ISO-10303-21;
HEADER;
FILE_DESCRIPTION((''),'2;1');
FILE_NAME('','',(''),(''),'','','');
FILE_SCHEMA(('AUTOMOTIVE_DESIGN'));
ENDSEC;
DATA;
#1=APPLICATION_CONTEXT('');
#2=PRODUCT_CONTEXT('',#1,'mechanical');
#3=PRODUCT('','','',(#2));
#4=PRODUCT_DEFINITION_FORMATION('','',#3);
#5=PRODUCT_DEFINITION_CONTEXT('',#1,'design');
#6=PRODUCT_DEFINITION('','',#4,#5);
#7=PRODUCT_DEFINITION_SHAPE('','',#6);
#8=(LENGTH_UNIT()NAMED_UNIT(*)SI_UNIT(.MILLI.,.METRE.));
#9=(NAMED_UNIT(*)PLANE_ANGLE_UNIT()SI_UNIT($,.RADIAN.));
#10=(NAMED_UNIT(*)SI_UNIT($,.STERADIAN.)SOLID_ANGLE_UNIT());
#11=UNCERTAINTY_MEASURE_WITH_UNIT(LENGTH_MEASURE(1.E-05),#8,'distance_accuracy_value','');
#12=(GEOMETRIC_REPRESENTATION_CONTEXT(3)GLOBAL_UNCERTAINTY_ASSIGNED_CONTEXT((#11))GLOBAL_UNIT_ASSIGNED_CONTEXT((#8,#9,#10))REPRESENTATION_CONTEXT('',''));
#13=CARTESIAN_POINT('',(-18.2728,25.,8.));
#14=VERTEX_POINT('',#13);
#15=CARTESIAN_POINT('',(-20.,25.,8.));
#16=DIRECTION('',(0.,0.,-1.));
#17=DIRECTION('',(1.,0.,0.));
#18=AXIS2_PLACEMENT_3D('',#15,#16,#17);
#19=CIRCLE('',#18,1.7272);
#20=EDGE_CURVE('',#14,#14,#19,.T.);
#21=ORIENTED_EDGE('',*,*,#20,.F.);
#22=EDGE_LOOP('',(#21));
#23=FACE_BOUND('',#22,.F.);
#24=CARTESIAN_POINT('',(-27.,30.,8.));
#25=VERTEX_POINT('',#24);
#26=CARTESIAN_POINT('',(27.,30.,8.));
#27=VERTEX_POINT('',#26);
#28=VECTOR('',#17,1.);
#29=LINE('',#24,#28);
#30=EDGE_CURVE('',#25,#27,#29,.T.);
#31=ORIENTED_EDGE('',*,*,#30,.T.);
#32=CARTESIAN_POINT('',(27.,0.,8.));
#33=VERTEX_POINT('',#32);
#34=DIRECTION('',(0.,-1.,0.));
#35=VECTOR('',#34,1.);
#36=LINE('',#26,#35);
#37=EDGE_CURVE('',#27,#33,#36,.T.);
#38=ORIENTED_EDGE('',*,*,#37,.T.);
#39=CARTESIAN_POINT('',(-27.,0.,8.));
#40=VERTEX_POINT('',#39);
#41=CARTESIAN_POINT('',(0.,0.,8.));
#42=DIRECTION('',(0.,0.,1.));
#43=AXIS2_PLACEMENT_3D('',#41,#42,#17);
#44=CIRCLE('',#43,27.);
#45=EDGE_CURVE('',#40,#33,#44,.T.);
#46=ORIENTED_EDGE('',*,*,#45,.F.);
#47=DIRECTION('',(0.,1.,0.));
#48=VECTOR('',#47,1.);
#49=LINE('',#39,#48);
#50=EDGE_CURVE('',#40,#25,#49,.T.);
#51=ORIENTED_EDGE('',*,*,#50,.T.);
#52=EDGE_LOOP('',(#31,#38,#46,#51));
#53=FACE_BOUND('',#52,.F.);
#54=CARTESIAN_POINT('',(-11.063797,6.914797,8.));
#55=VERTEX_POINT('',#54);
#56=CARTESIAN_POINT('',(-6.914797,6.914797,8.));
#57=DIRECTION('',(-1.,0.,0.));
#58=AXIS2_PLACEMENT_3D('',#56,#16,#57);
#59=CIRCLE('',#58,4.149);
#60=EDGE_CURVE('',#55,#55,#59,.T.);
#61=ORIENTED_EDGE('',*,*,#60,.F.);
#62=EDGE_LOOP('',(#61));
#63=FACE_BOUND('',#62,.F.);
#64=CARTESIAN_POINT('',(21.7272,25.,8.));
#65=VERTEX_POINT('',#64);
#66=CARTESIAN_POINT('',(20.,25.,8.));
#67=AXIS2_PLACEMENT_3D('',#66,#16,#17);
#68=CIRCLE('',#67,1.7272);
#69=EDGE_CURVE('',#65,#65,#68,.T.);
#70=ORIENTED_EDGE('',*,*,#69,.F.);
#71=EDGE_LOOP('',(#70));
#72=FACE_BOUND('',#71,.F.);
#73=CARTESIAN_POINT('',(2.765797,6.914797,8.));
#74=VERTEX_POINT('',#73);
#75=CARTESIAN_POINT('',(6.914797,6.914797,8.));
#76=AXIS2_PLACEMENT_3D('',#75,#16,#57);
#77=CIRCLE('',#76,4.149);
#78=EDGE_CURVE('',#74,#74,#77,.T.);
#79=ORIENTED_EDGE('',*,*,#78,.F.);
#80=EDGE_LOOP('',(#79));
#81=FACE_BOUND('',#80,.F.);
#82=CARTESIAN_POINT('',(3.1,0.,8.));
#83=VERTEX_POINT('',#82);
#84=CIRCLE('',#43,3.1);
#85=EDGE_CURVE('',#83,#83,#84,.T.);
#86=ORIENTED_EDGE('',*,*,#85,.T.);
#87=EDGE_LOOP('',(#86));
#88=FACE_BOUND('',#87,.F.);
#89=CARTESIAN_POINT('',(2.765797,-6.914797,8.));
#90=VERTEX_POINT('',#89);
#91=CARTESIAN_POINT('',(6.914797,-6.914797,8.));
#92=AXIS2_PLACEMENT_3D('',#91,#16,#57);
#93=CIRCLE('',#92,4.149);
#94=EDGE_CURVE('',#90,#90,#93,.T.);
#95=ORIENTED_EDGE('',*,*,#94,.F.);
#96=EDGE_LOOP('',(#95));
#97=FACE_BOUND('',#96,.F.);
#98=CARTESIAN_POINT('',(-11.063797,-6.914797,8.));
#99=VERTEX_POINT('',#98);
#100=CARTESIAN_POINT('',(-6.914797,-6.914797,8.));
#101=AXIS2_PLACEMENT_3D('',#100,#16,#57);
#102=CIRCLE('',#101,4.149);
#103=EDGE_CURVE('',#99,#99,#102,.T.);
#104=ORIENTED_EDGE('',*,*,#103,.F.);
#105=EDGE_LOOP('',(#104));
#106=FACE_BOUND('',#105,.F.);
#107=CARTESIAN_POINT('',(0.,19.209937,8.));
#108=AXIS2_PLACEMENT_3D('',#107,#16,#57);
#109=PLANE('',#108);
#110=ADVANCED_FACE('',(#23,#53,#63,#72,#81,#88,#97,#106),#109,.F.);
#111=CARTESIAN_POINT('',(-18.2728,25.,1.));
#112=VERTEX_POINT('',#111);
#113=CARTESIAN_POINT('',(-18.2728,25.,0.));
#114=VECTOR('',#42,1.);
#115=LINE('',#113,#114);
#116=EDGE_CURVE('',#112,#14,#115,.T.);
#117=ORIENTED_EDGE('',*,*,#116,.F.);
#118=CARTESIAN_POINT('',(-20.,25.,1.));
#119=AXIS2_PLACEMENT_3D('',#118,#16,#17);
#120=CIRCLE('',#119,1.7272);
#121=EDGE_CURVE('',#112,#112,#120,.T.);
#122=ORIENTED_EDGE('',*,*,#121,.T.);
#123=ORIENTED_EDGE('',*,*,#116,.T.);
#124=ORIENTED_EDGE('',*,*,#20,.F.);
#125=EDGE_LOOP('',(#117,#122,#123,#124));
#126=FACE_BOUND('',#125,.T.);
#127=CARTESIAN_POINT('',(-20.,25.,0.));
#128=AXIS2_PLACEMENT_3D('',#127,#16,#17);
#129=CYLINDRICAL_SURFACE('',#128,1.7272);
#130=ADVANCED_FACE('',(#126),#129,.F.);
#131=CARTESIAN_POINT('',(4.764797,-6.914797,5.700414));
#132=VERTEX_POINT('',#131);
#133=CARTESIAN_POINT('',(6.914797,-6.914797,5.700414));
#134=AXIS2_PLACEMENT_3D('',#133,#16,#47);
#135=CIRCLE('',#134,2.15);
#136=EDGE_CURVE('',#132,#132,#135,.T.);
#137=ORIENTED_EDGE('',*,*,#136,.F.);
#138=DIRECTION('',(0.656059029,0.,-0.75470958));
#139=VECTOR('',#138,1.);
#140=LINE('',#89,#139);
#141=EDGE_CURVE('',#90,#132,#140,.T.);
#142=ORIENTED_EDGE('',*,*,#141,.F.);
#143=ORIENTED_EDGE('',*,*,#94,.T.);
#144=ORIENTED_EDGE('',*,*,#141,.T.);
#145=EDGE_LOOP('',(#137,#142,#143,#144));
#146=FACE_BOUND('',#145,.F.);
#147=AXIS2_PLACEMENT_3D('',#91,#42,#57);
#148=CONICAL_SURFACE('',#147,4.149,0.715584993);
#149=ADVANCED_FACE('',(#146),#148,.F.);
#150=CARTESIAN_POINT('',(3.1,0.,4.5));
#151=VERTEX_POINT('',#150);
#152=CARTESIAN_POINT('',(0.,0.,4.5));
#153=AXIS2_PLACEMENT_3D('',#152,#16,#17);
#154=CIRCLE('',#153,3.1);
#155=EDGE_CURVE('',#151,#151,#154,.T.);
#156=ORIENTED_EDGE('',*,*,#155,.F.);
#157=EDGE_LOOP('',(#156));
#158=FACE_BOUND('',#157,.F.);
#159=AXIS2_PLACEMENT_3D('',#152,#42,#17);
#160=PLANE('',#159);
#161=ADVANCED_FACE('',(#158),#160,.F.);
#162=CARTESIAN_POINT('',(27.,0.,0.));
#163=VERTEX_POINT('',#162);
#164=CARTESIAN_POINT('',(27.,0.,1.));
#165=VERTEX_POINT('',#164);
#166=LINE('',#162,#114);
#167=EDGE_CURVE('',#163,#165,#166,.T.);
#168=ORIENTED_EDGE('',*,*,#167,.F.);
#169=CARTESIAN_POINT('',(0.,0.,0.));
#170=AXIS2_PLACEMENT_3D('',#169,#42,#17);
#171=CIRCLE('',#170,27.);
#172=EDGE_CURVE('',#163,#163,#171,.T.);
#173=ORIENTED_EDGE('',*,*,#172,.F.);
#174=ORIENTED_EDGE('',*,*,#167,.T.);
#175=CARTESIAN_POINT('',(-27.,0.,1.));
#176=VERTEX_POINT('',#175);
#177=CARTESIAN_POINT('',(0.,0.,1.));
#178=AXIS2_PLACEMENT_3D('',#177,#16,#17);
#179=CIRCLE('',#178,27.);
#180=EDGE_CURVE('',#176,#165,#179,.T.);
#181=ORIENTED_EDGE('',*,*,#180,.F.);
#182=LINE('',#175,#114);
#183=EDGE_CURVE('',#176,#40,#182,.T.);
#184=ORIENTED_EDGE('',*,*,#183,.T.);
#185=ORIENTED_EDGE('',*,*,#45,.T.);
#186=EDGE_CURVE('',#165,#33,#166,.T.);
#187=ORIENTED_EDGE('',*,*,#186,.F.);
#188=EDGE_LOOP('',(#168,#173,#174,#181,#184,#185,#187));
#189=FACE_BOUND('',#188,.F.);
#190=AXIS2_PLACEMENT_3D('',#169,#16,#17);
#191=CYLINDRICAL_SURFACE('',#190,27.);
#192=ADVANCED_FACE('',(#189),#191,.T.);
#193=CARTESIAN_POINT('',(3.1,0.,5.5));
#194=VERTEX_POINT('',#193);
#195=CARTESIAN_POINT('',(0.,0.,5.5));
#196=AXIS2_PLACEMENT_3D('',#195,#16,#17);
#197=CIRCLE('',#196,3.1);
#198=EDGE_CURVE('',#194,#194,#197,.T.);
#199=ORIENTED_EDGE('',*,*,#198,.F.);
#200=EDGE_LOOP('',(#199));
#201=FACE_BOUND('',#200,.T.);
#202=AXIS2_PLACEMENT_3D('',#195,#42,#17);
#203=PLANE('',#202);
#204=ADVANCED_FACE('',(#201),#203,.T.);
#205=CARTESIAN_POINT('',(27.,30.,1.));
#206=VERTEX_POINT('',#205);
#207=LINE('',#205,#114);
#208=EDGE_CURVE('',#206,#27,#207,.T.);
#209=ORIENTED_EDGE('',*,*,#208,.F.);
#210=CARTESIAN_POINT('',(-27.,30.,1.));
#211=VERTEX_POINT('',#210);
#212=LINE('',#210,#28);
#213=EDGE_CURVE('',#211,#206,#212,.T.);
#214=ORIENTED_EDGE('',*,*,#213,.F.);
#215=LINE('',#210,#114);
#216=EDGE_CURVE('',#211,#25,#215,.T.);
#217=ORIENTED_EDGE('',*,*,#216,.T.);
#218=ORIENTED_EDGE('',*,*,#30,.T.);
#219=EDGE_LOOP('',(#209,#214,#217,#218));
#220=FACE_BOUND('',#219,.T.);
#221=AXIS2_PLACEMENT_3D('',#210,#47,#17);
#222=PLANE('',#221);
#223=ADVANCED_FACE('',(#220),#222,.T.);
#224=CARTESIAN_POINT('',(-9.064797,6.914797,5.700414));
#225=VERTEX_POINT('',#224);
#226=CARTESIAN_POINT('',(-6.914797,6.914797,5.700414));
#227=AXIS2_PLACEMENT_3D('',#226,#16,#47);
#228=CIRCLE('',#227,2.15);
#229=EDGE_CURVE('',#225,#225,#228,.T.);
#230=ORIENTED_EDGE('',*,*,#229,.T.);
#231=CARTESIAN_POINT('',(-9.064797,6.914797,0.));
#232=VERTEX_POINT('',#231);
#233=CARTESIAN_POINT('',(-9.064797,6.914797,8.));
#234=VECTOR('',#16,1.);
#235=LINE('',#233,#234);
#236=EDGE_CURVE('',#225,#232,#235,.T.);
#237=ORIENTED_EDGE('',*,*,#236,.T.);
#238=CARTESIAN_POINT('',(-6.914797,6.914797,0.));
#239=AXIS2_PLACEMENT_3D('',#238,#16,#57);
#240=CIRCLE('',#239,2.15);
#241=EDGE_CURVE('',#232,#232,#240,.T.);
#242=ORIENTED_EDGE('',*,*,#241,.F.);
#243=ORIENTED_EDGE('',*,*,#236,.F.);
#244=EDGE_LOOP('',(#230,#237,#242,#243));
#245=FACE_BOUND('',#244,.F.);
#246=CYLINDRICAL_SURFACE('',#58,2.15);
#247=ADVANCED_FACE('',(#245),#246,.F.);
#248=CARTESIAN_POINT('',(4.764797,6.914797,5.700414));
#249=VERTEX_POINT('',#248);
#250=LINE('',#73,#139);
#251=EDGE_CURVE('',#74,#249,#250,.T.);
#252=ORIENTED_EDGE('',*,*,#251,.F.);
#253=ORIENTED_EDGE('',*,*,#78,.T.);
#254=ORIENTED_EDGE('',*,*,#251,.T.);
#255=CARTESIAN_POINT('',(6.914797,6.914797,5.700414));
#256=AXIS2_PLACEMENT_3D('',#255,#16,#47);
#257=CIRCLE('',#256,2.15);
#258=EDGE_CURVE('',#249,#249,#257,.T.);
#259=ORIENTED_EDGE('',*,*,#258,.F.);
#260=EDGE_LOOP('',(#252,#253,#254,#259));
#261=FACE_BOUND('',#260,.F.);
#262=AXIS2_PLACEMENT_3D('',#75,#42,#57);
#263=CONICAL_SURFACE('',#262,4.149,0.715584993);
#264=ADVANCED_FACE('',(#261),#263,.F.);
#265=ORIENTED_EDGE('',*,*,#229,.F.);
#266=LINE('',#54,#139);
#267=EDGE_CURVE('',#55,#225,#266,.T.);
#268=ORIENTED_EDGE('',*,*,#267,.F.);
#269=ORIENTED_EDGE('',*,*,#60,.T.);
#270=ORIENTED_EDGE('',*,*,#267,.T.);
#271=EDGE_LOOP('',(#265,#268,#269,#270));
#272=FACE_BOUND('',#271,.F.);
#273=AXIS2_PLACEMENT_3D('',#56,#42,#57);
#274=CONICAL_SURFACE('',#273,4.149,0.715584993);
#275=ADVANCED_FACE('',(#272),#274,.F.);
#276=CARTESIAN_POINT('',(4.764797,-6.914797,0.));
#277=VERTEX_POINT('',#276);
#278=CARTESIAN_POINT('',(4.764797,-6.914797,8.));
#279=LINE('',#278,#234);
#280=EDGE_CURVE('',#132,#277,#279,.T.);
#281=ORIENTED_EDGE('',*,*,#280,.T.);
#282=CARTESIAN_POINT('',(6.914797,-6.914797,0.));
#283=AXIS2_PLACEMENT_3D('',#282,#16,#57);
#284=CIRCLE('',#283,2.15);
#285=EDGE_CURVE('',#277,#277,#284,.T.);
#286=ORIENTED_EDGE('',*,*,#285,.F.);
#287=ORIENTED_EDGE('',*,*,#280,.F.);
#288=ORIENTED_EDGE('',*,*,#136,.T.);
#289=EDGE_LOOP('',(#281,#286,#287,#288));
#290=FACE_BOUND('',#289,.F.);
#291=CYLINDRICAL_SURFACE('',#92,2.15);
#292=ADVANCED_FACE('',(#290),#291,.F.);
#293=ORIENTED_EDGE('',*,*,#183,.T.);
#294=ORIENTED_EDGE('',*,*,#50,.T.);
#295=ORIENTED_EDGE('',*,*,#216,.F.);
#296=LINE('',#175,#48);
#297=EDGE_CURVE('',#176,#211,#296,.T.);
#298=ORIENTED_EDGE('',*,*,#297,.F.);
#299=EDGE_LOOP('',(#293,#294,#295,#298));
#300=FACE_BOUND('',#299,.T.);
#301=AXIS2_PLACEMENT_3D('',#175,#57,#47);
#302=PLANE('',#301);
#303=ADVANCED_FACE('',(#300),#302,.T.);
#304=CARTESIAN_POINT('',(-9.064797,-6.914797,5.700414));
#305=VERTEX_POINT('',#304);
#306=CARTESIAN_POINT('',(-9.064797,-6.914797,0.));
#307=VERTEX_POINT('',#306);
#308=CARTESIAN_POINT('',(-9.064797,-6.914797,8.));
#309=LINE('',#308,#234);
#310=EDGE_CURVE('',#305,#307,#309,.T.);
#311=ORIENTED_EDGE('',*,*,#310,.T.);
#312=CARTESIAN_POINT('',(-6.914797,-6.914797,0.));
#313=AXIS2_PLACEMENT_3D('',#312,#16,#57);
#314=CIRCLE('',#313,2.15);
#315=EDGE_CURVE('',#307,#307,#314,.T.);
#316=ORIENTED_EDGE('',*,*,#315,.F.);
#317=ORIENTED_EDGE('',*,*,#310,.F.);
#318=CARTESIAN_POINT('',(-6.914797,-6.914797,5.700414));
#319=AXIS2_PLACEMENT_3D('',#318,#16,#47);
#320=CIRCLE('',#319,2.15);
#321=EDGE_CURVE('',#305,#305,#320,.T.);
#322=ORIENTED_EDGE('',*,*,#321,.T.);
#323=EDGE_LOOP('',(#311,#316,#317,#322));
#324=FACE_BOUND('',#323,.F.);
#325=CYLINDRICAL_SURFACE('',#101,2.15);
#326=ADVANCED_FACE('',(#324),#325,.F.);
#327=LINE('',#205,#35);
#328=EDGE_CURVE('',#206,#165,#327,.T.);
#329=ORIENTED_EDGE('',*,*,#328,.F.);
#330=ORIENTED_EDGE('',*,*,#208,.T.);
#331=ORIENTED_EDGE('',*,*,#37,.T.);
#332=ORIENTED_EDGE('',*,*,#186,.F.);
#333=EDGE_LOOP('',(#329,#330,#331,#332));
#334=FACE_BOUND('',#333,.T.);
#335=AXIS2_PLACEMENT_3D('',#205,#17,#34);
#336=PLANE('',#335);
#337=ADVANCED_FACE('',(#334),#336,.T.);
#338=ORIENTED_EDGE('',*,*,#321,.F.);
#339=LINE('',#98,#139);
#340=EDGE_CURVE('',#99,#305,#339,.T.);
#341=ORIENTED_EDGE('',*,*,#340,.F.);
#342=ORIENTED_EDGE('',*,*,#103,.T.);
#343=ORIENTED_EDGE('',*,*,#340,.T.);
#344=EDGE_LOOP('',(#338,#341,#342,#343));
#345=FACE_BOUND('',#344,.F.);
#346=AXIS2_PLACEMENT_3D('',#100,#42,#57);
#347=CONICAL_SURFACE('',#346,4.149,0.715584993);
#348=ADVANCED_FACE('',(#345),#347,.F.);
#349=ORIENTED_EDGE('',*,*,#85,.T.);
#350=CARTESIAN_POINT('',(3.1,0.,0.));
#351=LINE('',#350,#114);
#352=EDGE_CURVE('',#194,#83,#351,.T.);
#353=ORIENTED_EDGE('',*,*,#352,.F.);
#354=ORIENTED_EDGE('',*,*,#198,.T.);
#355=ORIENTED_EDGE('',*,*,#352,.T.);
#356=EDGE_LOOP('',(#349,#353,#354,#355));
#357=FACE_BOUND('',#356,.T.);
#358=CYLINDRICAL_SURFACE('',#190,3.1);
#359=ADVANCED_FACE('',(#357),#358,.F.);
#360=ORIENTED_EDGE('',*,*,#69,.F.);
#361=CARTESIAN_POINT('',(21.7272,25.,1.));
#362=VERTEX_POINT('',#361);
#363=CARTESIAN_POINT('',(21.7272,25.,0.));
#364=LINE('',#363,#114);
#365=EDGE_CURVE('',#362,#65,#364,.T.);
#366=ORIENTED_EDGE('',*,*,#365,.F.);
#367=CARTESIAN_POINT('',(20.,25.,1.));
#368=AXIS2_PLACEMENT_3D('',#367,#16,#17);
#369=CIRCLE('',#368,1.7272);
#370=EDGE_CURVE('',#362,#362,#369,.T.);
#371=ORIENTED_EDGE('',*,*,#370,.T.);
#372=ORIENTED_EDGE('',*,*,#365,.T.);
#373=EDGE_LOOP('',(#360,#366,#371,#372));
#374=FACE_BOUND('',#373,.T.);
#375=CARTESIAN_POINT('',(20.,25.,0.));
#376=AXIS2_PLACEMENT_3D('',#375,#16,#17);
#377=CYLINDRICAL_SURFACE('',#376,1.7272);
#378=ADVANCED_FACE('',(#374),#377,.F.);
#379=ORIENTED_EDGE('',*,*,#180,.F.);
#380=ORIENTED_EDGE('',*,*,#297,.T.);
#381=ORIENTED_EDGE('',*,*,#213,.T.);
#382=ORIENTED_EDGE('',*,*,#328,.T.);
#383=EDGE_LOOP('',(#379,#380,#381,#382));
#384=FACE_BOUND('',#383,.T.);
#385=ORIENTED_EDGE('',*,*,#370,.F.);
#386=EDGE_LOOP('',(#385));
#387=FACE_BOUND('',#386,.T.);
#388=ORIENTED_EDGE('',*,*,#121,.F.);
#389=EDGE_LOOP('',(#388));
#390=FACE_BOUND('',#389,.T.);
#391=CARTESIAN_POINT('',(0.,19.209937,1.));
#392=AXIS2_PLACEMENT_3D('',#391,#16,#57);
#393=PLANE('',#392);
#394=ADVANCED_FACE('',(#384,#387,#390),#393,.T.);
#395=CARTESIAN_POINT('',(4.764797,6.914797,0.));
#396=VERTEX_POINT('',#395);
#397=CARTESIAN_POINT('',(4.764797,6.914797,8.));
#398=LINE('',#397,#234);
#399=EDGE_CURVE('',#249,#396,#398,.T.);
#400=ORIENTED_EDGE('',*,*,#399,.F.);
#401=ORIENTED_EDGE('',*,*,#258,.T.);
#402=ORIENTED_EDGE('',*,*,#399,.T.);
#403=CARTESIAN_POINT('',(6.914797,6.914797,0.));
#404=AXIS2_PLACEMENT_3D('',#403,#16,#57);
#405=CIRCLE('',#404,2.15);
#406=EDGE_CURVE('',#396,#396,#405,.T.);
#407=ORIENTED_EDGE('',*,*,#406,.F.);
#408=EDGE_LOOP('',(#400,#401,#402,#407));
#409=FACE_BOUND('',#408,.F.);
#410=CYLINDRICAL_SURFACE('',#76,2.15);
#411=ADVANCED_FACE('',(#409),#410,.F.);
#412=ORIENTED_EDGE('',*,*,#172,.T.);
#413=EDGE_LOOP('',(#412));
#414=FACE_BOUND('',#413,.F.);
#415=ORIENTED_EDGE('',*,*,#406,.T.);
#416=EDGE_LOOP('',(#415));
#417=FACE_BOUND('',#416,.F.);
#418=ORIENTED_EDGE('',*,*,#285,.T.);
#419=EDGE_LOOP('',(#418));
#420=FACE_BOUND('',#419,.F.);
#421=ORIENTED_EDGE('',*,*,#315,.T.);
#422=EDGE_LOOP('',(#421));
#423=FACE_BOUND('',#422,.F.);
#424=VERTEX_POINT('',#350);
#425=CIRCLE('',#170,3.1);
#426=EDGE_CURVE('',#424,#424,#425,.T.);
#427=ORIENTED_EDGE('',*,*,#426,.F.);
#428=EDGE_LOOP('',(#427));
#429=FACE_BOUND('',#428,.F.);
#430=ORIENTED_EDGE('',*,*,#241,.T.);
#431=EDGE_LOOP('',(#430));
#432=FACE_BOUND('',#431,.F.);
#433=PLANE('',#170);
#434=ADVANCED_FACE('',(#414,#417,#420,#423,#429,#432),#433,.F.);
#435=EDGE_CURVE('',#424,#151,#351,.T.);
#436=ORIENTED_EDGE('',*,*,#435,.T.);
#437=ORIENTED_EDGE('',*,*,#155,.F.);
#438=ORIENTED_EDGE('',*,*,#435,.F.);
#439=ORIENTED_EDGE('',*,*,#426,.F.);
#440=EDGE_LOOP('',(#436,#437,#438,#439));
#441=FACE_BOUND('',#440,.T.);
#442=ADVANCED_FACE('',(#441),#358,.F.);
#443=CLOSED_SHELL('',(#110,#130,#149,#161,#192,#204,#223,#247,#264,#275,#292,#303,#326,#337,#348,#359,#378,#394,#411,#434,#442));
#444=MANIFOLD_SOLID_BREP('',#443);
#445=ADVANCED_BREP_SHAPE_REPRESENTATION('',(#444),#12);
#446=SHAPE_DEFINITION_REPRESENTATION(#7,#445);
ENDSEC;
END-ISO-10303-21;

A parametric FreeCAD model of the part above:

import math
import FreeCAD as App
import Part
import Sketcher

doc = App.newDocument("Part")
body = doc.addObject("PartDesign::Body", "Body")

sketch1 = body.newObject("Sketcher::SketchObject", "Sketch")
sketch1.AttachmentSupport = (doc.getObject("XY_Plane"), [""])
sketch1.MapMode = "FlatFace"
sketch1.addGeometry([
    Part.Circle(App.Vector(0, 0, 0), App.Vector(0, 0, 1), 27),
    Part.Circle(App.Vector(0, 0, 0), App.Vector(0, 0, 1), 3.1),
], False)
sketch1.addConstraint([
    Sketcher.Constraint("Coincident", 0, 3, -1, 1),
    Sketcher.Constraint("Coincident", 1, 3, -1, 1),
    Sketcher.Constraint("Diameter", 0, 54.0),
    Sketcher.Constraint("Diameter", 1, 6.2),
])
pad1 = body.newObject("PartDesign::Pad", "Pad")
pad1.Profile = sketch1
pad1.Length = 8

sketch2 = body.newObject("Sketcher::SketchObject", "Sketch001")
sketch2.AttachmentSupport = (doc.getObject("XY_Plane"), [""])
sketch2.MapMode = "FlatFace"
sketch2.AttachmentOffset = App.Placement(App.Vector(0, 0, 8), App.Rotation())
sketch2.addGeometry([
    Part.Circle(App.Vector(-6.914797, 6.914797, 0), App.Vector(0, 0, 1), 2.15),
    Part.Circle(App.Vector(6.914797, 6.914797, 0), App.Vector(0, 0, 1), 2.15),
    Part.Circle(App.Vector(6.914797, -6.914797, 0), App.Vector(0, 0, 1), 2.15),
    Part.Circle(App.Vector(-6.914797, -6.914797, 0), App.Vector(0, 0, 1), 2.15),
], False)
sketch2.addConstraint([
    Sketcher.Constraint("Equal", 0, 1),
    Sketcher.Constraint("Equal", 1, 2),
    Sketcher.Constraint("Equal", 2, 3),
    Sketcher.Constraint("Symmetric", 0, 3, 2, 3, -1, 1),
    Sketcher.Constraint("Symmetric", 1, 3, 3, 3, -1, 1),
    Sketcher.Constraint("Symmetric", 0, 3, 1, 3, -2),
    Sketcher.Constraint("Diameter", 0, 4.3),
    Sketcher.Constraint("DistanceX", 0, 3, -1, 1, 6.914797),
    Sketcher.Constraint("DistanceY", -1, 1, 0, 3, 6.914797),
])
doc.recompute()
hole = body.newObject("PartDesign::Hole", "Hole")
hole.Profile = sketch2
hole.ThreadType = "None"
hole.Diameter = 4.3
hole.DepthType = "ThroughAll"
hole.HoleCutType = "Countersink"
hole.HoleCutDiameter = 8.298
hole.HoleCutCountersinkAngle = 82

sketch3 = body.newObject("Sketcher::SketchObject", "Sketch002")
sketch3.AttachmentSupport = (doc.getObject("XY_Plane"), [""])
sketch3.MapMode = "FlatFace"
sketch3.AttachmentOffset = App.Placement(App.Vector(0, 0, 4.5), App.Rotation())
sketch3.addGeometry(Part.Circle(App.Vector(0, 0, 0), App.Vector(0, 0, 1), 4), False)
sketch3.addConstraint([
    Sketcher.Constraint("Coincident", 0, 3, -1, 1),
    Sketcher.Constraint("Diameter", 0, 8.0),
])
pad2 = body.newObject("PartDesign::Pad", "Pad001")
pad2.Profile = sketch3
pad2.Length = 1

sketch4 = body.newObject("Sketcher::SketchObject", "Sketch003")
sketch4.AttachmentSupport = (doc.getObject("XY_Plane"), [""])
sketch4.MapMode = "FlatFace"
sketch4.AttachmentOffset = App.Placement(App.Vector(0, 0, 1), App.Rotation())
sketch4.addGeometry([
    Part.LineSegment(App.Vector(-27, 30, 0), App.Vector(-27, 0, 0)),
    Part.LineSegment(App.Vector(-27, 0, 0), App.Vector(-26.5, 0, 0)),
    Part.ArcOfCircle(Part.Circle(App.Vector(0, 0, 0), App.Vector(0, 0, 1), 26.5), math.radians(0), math.radians(180)),
    Part.LineSegment(App.Vector(26.5, 0, 0), App.Vector(27, 0, 0)),
    Part.LineSegment(App.Vector(27, 0, 0), App.Vector(27, 30, 0)),
    Part.LineSegment(App.Vector(27, 30, 0), App.Vector(-27, 30, 0)),
], False)
sketch4.addConstraint([
    Sketcher.Constraint("Coincident", 0, 2, 1, 1),
    Sketcher.Constraint("Coincident", 1, 2, 2, 2),
    Sketcher.Constraint("Coincident", 2, 1, 3, 1),
    Sketcher.Constraint("Coincident", 3, 2, 4, 1),
    Sketcher.Constraint("Coincident", 4, 2, 5, 1),
    Sketcher.Constraint("Coincident", 5, 2, 0, 1),
    Sketcher.Constraint("Vertical", 0),
    Sketcher.Constraint("Horizontal", 1),
    Sketcher.Constraint("Horizontal", 3),
    Sketcher.Constraint("Vertical", 4),
    Sketcher.Constraint("Horizontal", 5),
    Sketcher.Constraint("Coincident", 2, 3, -1, 1),
    Sketcher.Constraint("Symmetric", 0, 2, 3, 2, -1, 1),
    Sketcher.Constraint("PointOnObject", 0, 2, -1),
    Sketcher.Constraint("Radius", 2, 26.5),
    Sketcher.Constraint("DistanceX", 5, 2, 5, 1, 54.0),
    Sketcher.Constraint("DistanceY", 0, 2, 0, 1, 30.0),
])
pad3 = body.newObject("PartDesign::Pad", "Pad002")
pad3.Profile = sketch4
pad3.Length = 7

sketch5 = body.newObject("Sketcher::SketchObject", "Sketch004")
sketch5.AttachmentSupport = (doc.getObject("XY_Plane"), [""])
sketch5.MapMode = "FlatFace"
sketch5.addGeometry([
    Part.Circle(App.Vector(-20, 25, 0), App.Vector(0, 0, 1), 1.7272),
    Part.Circle(App.Vector(20, 25, 0), App.Vector(0, 0, 1), 1.7272),
], False)
sketch5.addConstraint([
    Sketcher.Constraint("Equal", 0, 1),
    Sketcher.Constraint("Symmetric", 0, 3, 1, 3, -2),
    Sketcher.Constraint("DistanceX", 0, 3, -1, 1, 20.0),
    Sketcher.Constraint("DistanceY", -1, 1, 0, 3, 25.0),
    Sketcher.Constraint("Diameter", 0, 3.4544),
])
pocket1 = body.newObject("PartDesign::Pocket", "Pocket")
pocket1.Profile = sketch5
pocket1.Type = "ThroughAll"
pocket1.Reversed = True

doc.recompute()
